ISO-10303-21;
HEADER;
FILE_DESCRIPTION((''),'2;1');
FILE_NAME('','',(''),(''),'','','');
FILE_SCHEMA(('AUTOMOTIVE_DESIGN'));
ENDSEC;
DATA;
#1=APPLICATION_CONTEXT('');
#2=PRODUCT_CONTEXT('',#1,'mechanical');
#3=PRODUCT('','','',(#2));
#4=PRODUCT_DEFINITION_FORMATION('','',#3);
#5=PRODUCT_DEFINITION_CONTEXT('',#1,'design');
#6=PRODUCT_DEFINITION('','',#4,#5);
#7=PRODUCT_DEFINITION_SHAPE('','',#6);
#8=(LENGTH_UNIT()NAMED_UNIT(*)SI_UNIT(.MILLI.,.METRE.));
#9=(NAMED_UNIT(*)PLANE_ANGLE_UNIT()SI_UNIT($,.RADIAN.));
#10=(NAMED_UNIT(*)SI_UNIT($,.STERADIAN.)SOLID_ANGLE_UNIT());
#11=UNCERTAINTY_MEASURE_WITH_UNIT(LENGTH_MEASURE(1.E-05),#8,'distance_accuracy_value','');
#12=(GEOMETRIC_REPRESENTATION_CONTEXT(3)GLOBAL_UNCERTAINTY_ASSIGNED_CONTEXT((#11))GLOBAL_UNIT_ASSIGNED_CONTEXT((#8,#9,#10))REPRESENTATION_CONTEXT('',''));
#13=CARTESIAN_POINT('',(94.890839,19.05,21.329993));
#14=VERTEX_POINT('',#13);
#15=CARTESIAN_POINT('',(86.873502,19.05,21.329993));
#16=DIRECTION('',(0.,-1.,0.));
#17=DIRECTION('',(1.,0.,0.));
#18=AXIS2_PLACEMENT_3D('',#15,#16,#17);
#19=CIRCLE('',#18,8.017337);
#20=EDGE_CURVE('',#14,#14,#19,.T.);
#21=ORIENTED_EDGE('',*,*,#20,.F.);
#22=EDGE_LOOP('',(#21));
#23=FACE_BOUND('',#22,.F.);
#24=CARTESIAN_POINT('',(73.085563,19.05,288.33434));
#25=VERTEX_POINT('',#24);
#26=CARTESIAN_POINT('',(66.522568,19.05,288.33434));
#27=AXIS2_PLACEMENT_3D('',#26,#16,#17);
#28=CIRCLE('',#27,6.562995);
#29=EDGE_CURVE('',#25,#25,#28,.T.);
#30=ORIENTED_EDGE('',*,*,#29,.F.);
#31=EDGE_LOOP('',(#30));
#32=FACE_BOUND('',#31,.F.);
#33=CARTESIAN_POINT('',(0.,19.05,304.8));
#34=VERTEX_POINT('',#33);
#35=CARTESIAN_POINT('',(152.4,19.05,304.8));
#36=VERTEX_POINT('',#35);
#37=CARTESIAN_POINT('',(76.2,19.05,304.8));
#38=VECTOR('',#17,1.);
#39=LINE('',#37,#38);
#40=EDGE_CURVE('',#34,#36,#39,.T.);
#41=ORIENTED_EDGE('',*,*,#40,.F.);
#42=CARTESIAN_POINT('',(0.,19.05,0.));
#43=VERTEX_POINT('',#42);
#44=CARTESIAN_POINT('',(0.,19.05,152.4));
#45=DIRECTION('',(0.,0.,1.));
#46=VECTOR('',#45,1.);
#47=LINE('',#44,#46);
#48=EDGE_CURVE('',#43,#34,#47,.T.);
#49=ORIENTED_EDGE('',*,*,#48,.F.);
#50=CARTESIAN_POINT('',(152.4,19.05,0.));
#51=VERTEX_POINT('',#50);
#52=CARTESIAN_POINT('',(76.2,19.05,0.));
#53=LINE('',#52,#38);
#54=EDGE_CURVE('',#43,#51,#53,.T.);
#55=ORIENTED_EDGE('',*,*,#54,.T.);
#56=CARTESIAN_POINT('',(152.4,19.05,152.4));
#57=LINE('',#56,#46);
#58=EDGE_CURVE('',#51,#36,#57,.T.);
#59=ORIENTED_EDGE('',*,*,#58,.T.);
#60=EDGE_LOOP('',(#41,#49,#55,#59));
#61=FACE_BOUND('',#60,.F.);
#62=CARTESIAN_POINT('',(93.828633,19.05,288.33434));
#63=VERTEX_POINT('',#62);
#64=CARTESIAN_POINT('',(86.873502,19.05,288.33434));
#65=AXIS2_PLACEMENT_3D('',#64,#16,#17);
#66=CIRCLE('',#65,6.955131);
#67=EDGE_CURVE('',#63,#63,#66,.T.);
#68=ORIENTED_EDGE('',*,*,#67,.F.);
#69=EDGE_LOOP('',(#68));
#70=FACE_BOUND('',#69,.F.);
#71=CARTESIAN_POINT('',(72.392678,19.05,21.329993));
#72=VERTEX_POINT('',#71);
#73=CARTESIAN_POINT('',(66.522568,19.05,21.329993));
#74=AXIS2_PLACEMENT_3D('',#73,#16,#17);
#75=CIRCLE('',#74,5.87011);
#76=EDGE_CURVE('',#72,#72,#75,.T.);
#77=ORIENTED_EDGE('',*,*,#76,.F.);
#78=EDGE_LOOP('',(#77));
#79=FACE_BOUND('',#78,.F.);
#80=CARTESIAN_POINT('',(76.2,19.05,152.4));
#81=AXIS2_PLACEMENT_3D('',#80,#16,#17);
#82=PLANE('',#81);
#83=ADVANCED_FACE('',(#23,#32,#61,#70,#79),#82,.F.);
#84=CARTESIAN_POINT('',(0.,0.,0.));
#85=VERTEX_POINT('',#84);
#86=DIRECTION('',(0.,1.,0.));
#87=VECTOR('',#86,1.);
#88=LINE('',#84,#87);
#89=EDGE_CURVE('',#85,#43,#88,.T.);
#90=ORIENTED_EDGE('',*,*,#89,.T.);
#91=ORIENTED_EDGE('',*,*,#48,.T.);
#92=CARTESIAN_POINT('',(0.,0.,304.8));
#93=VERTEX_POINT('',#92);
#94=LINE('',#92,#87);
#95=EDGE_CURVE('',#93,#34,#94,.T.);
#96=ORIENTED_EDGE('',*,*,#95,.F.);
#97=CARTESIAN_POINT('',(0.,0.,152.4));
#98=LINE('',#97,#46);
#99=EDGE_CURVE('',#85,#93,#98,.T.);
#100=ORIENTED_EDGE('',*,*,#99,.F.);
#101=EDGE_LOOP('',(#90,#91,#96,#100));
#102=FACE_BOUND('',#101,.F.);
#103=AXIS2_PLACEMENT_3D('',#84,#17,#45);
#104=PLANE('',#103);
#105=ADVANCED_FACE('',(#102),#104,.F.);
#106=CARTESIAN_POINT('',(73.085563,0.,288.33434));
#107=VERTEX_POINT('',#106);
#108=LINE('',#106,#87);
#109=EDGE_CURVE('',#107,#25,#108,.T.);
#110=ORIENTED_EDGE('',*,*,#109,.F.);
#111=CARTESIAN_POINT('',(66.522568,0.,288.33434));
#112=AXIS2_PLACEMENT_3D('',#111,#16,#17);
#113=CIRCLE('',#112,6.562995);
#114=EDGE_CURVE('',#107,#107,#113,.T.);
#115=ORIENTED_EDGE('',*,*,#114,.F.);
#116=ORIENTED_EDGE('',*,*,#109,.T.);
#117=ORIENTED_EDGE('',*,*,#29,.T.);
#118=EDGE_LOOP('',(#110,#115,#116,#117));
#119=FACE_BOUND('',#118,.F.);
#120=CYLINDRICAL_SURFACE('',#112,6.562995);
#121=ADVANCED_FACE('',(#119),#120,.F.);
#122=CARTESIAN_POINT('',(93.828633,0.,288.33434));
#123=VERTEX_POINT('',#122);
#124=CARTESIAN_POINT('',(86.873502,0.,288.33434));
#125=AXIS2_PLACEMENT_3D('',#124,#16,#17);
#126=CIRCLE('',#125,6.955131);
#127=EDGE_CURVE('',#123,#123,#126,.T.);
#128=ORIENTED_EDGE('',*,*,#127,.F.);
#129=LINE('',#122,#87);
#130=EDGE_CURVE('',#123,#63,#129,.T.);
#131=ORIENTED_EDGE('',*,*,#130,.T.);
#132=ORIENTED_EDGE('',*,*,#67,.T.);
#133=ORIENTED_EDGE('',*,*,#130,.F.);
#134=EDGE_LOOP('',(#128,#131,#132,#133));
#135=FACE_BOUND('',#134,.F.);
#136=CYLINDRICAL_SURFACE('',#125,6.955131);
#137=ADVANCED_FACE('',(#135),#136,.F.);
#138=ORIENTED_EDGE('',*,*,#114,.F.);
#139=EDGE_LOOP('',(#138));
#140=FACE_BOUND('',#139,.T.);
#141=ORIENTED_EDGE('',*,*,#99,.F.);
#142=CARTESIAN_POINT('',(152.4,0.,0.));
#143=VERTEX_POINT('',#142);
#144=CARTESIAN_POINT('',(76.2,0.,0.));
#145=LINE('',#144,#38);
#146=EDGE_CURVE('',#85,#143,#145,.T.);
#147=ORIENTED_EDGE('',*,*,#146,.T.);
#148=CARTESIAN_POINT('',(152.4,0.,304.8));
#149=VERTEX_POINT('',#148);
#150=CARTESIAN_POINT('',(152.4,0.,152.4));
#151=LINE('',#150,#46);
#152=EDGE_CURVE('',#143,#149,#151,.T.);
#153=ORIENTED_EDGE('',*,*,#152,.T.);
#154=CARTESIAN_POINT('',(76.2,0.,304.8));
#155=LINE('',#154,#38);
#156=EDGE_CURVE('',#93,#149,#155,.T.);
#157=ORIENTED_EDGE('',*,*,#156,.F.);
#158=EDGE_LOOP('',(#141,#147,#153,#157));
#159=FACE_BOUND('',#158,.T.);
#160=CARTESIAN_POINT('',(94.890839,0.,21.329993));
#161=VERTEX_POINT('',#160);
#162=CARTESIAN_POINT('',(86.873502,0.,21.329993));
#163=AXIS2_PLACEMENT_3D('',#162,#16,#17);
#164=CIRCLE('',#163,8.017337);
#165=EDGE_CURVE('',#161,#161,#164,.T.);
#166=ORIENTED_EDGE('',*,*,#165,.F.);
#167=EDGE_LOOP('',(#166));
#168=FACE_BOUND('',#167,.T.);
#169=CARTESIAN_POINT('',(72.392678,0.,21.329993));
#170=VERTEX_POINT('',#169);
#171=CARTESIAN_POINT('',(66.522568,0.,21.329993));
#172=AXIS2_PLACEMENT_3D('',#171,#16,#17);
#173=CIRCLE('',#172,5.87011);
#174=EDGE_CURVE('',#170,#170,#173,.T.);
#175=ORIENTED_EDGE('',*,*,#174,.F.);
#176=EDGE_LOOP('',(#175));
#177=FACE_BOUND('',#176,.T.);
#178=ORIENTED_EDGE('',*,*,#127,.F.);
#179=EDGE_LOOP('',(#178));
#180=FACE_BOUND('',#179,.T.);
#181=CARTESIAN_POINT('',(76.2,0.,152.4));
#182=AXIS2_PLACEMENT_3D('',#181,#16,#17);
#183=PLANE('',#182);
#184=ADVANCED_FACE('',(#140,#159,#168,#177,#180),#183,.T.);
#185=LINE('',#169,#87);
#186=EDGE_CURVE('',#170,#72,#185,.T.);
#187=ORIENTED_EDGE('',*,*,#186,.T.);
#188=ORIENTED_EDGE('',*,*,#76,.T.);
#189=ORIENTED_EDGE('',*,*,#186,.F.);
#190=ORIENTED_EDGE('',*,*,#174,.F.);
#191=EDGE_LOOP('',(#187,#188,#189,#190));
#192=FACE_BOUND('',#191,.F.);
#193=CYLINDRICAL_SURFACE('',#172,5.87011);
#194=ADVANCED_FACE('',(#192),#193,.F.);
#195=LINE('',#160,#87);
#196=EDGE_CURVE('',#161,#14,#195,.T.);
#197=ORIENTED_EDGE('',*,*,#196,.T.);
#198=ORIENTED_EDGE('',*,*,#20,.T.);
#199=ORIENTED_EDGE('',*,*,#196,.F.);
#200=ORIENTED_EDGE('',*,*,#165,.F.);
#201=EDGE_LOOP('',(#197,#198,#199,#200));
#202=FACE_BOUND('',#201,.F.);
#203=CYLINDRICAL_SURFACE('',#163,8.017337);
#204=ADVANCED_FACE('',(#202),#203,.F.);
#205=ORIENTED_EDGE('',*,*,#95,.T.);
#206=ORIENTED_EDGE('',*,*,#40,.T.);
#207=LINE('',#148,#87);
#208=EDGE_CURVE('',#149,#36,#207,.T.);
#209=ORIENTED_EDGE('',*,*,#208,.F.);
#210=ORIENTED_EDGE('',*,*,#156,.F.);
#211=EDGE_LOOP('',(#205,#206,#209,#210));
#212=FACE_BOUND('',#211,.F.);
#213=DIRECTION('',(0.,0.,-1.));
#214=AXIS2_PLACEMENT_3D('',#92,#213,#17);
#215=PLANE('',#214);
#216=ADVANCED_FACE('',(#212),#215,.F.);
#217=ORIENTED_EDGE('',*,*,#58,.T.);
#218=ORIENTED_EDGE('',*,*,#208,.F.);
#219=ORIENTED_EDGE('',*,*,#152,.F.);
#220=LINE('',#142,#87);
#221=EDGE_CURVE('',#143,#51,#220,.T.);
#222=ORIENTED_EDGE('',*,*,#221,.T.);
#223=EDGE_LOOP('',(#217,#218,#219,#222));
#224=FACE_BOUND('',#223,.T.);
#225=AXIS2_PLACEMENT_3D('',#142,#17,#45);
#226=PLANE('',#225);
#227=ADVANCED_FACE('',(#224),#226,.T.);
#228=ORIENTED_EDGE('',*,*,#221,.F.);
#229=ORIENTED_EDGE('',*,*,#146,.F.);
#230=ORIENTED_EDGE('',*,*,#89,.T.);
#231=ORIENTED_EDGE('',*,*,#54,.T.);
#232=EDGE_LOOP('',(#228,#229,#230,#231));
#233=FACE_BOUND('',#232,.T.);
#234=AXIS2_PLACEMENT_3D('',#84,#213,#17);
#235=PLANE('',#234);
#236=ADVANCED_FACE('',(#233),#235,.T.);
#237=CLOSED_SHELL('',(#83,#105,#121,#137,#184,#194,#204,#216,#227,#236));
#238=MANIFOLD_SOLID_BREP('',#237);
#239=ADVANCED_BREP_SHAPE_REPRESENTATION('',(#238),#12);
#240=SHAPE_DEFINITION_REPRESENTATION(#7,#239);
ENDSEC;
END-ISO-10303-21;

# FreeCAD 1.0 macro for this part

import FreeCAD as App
import Part
import Sketcher
Q = App.Units.Quantity

doc = App.newDocument("Part")
params = doc.addObject("Spreadsheet::Sheet", "Params")
for row, (alias, value) in enumerate([
    ("sketch1_width", "6 in"),
    ("sketch1_height", "12 in"),
    ("pad1_length", "0.75 in"),
    ("pocket1_length", "1 in"),
], start=1):
    params.set(f"A{row}", alias)
    params.set(f"B{row}", "=" + value)
    params.setAlias(f"B{row}", alias)

body = doc.addObject("PartDesign::Body", "Body")

# Sketch on XZ plane
sketch1 = doc.addObject("Sketcher::SketchObject", "Sketch")
body.addObject(sketch1)
sketch1.AttachmentSupport = (doc.XZ_Plane, [""])
sketch1.MapMode = "FlatFace"
sketch1.addGeometry([
    Part.LineSegment(App.Vector(0, 305, 0), App.Vector(0, 0, 0)),
    Part.LineSegment(App.Vector(0, 0, 0), App.Vector(152, 0, 0)),
    Part.LineSegment(App.Vector(152, 0, 0), App.Vector(152, 305, 0)),
    Part.LineSegment(App.Vector(152, 305, 0), App.Vector(0, 305, 0)),
], False)
sketch1.addConstraint([
    Sketcher.Constraint("Coincident", 0, 2, 1, 1),
    Sketcher.Constraint("Coincident", 1, 2, 2, 1),
    Sketcher.Constraint("Coincident", 2, 2, 3, 1),
    Sketcher.Constraint("Coincident", 3, 2, 0, 1),
    Sketcher.Constraint("Vertical", 0),
    Sketcher.Constraint("Horizontal", 1),
    Sketcher.Constraint("Vertical", 2),
    Sketcher.Constraint("Horizontal", 3),
    Sketcher.Constraint("Coincident", 0, 2, -1, 1),
    Sketcher.Constraint("DistanceX", 1, 1, 1, 2, Q("6 in")),
    Sketcher.Constraint("DistanceY", 0, 2, 0, 1, Q("12 in")),
])
sketch1.setExpression("Constraints[9]", "Params.sketch1_width")
sketch1.setExpression("Constraints[10]", "Params.sketch1_height")
pad1 = doc.addObject("PartDesign::Pad", "Pad")
body.addObject(pad1)
pad1.Profile = sketch1
pad1.setExpression("Length", "Params.pad1_length")
pad1.Reversed = True

# Sketch on XZ plane
sketch2 = doc.addObject("Sketcher::SketchObject", "Sketch001")
body.addObject(sketch2)
sketch2.AttachmentSupport = (doc.XZ_Plane, [""])
sketch2.MapMode = "FlatFace"
sketch2.addGeometry([
    Part.Circle(App.Vector(67, 288, 0), App.Vector(0, 0, 1), 7),
    Part.Circle(App.Vector(87, 288, 0), App.Vector(0, 0, 1), 7),
    Part.Circle(App.Vector(67, 21, 0), App.Vector(0, 0, 1), 6),
    Part.Circle(App.Vector(87, 21, 0), App.Vector(0, 0, 1), 8),
], False)
sketch2.addConstraint([
    Sketcher.Constraint("Horizontal", 0, 3, 1, 3),
    Sketcher.Constraint("Horizontal", 2, 3, 3, 3),
    Sketcher.Constraint("Vertical", 0, 3, 2, 3),
    Sketcher.Constraint("Vertical", 1, 3, 3, 3),
    Sketcher.Constraint("Diameter", 0, 13.12599),
    Sketcher.Constraint("Diameter", 2, 11.74022),
    Sketcher.Constraint("Diameter", 1, 13.910262),
    Sketcher.Constraint("Diameter", 3, 16.034674),
    Sketcher.Constraint("DistanceX", -1, 1, 1, 3, 86.873502),
    Sketcher.Constraint("DistanceX", -1, 1, 0, 3, 66.522568),
    Sketcher.Constraint("DistanceY", -1, 1, 0, 3, 288.33434),
    Sketcher.Constraint("DistanceY", -1, 1, 2, 3, 21.329993),
])
pocket1 = doc.addObject("PartDesign::Pocket", "Pocket")
body.addObject(pocket1)
pocket1.Profile = sketch2
pocket1.setExpression("Length", "Params.pocket1_length")

doc.recompute()
